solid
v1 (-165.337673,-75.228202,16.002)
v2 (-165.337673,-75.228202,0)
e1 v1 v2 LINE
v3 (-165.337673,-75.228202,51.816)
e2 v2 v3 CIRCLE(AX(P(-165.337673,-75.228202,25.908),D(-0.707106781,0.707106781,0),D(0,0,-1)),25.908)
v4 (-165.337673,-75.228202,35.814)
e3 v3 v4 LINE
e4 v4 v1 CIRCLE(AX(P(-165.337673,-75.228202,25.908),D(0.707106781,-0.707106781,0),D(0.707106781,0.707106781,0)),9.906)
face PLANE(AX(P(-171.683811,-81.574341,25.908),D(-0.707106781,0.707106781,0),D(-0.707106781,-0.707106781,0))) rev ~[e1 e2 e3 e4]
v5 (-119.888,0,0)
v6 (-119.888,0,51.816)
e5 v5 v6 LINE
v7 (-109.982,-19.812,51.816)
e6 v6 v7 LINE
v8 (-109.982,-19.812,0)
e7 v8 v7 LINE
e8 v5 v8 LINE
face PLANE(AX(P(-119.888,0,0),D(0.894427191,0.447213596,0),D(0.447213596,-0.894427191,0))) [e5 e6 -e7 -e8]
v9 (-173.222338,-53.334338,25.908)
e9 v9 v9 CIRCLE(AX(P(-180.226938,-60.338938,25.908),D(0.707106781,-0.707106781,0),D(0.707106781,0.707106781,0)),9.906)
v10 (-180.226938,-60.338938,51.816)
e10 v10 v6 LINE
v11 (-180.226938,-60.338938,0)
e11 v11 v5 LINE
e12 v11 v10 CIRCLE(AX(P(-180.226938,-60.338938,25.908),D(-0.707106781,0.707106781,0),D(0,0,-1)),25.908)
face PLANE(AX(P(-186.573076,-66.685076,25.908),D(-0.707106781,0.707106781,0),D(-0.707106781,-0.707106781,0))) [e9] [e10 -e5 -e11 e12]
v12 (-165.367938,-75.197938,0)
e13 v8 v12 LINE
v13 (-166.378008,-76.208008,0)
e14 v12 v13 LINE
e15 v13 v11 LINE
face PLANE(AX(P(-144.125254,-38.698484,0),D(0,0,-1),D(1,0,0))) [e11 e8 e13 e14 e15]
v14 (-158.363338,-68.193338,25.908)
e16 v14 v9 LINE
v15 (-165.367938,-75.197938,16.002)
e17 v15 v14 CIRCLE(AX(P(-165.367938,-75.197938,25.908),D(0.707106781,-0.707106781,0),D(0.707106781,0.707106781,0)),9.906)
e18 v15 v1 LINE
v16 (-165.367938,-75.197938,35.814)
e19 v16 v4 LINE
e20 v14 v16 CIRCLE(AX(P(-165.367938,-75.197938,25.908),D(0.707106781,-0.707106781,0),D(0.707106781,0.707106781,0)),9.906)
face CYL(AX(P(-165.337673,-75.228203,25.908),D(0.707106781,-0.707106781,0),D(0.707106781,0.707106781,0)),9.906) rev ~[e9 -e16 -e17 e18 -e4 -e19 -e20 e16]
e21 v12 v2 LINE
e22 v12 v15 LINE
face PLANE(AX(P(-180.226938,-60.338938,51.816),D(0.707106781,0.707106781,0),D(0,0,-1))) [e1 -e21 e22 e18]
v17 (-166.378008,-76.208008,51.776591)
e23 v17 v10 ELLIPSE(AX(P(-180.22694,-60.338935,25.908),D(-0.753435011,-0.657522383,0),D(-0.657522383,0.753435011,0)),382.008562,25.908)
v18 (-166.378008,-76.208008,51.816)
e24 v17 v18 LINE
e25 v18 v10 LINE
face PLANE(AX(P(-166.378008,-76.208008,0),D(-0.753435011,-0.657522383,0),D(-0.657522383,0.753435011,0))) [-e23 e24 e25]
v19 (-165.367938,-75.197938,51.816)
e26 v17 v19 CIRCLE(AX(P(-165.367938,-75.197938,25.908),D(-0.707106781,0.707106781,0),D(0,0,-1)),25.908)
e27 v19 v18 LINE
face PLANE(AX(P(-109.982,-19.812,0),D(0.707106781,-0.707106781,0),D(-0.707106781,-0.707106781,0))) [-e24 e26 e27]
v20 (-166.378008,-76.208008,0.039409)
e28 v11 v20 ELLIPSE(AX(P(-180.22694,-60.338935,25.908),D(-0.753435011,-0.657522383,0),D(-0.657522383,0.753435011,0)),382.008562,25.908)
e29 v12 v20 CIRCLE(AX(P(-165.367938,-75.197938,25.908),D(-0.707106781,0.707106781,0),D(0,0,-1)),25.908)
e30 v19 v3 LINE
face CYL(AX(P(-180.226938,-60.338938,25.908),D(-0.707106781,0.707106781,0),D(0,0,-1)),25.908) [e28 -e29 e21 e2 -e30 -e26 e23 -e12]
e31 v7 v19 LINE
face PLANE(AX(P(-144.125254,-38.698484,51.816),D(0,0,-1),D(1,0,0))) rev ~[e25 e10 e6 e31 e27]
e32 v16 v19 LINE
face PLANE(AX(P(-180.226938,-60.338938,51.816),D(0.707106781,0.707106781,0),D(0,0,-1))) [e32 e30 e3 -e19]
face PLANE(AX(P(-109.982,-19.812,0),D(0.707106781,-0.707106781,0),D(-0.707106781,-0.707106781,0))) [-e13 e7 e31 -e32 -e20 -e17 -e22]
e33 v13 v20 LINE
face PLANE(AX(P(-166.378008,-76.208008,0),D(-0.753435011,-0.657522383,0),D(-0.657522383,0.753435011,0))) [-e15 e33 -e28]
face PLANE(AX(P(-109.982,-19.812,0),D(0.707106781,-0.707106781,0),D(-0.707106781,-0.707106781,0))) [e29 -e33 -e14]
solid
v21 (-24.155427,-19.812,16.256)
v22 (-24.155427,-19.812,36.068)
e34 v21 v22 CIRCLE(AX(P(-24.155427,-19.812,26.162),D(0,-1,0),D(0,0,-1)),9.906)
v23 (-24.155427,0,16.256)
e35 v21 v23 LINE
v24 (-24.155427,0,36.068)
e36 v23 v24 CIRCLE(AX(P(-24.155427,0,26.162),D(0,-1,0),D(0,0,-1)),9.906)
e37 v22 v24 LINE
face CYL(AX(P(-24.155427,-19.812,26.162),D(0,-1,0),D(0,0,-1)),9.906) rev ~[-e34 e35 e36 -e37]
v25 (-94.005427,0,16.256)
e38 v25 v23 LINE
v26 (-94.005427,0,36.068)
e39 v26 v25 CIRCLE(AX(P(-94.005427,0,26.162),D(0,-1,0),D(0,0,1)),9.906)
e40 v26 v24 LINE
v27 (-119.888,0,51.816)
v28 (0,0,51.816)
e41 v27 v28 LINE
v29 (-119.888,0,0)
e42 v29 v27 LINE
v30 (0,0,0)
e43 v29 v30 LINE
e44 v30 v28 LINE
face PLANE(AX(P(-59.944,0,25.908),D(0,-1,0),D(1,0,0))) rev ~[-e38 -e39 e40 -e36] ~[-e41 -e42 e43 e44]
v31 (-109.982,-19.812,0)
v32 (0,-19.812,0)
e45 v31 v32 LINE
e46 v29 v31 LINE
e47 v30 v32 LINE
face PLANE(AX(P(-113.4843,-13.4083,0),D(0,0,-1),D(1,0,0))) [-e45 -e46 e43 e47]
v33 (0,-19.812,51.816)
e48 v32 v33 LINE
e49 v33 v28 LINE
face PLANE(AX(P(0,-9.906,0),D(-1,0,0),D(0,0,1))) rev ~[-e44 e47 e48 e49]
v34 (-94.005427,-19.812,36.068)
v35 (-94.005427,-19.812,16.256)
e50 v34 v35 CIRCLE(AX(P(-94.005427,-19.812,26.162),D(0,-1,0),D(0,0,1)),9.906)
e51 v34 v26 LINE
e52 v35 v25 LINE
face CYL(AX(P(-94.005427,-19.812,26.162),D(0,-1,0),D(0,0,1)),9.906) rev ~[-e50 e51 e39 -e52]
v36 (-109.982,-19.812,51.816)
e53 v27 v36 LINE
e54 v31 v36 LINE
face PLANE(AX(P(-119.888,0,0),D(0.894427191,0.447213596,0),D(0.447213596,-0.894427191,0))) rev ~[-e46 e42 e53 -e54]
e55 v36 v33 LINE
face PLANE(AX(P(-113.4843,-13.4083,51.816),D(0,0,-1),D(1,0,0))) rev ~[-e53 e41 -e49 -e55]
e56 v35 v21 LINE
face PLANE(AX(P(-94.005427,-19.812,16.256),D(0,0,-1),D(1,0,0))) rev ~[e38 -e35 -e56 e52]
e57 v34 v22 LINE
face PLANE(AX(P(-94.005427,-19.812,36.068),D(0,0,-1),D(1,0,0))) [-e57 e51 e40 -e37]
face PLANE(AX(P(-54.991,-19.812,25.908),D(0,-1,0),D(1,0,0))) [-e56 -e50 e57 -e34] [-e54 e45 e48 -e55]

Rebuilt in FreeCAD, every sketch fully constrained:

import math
import FreeCAD as App
import Part
import Sketcher
from FreeCAD import Vector
Q = App.Units.Quantity

doc = App.newDocument("Part")
params = doc.addObject("Spreadsheet::Sheet", "Params")
for row, (alias, value) in enumerate([
    ("sketch1_width", "4.72 in"),
    ("sketch1_height", "2.04 in"),
    ("pad1_length", "0.39 in"),
    ("sketch2_width", "4.33 in"),
    ("sketch2_height", "2.04 in"),
    ("pad2_length", "0.39 in"),
    ("sketch3_width", "0.39 in"),
    ("pad3_length", "2.04 in"),
    ("sketch4_height", "0.39 in"),
    ("pocket1_length", "2.04 in"),
    ("sketch5_radius", "0.39 in"),
    ("sketch5_width", "2.75 in"),
    ("pocket2_length", "0.78 in"),
    ("sketch6_length", "3.14 in"),
    ("pad4_length", "2.04 in"),
    ("sketch7_radius", "1.02 in"),
    ("pad5_length", "0.829 in"),
    ("sketch8_diameter", "0.78 in"),
    ("pocket3_length", "1 in"),
], start=1):
    params.set(f"A{row}", alias)
    params.set(f"B{row}", "=" + value)
    params.setAlias(f"B{row}", alias)

body = doc.addObject("PartDesign::Body", "Body")

sketch1 = body.newObject("Sketcher::SketchObject", "Sketch")
sketch1.AttachmentSupport = (doc.getObject("XZ_Plane"), [""])
sketch1.MapMode = "FlatFace"
sketch1.addGeometry([
    Part.LineSegment(Vector(-120, 52, 0), Vector(-120, 0, 0)),
    Part.LineSegment(Vector(-120, 0, 0), Vector(0, 0, 0)),
    Part.LineSegment(Vector(0, 0, 0), Vector(0, 52, 0)),
    Part.LineSegment(Vector(0, 52, 0), Vector(-120, 52, 0)),
], False)
sketch1.addConstraint([
    Sketcher.Constraint("Coincident", 0, 2, 1, 1),
    Sketcher.Constraint("Coincident", 1, 2, 2, 1),
    Sketcher.Constraint("Coincident", 2, 2, 3, 1),
    Sketcher.Constraint("Coincident", 3, 2, 0, 1),
    Sketcher.Constraint("Vertical", 0),
    Sketcher.Constraint("Horizontal", 1),
    Sketcher.Constraint("Vertical", 2),
    Sketcher.Constraint("Horizontal", 3),
    Sketcher.Constraint("Coincident", 1, 2, -1, 1),
    Sketcher.Constraint("DistanceX", 1, 1, 1, 2, Q("4.72 in")),
    Sketcher.Constraint("DistanceY", 0, 2, 0, 1, Q("2.04 in")),
])
sketch1.setExpression("Constraints[9]", "Params.sketch1_width")
sketch1.setExpression("Constraints[10]", "Params.sketch1_height")
pad1 = body.newObject("PartDesign::Pad", "Pad")
pad1.Profile = sketch1
pad1.setExpression("Length", "Params.pad1_length")

sketch2 = body.newObject("Sketcher::SketchObject", "Sketch001")
sketch2.AttachmentSupport = (doc.getObject("XZ_Plane"), [""])
sketch2.MapMode = "FlatFace"
sketch2.AttachmentOffset = App.Placement(Vector(0, 0, 0.39 * 25.4), App.Rotation())
sketch2.addGeometry([
    Part.LineSegment(Vector(-110, 52, 0), Vector(-110, 0, 0)),
    Part.LineSegment(Vector(-110, 0, 0), Vector(0, 0, 0)),
    Part.LineSegment(Vector(0, 0, 0), Vector(0, 52, 0)),
    Part.LineSegment(Vector(0, 52, 0), Vector(-110, 52, 0)),
], False)
sketch2.addConstraint([
    Sketcher.Constraint("Coincident", 0, 2, 1, 1),
    Sketcher.Constraint("Coincident", 1, 2, 2, 1),
    Sketcher.Constraint("Coincident", 2, 2, 3, 1),
    Sketcher.Constraint("Coincident", 3, 2, 0, 1),
    Sketcher.Constraint("Vertical", 0),
    Sketcher.Constraint("Horizontal", 1),
    Sketcher.Constraint("Vertical", 2),
    Sketcher.Constraint("Horizontal", 3),
    Sketcher.Constraint("Coincident", 1, 2, -1, 1),
    Sketcher.Constraint("DistanceX", 1, 1, 1, 2, Q("4.33 in")),
    Sketcher.Constraint("DistanceY", 0, 2, 0, 1, Q("2.04 in")),
])
sketch2.setExpression("Constraints[9]", "Params.sketch2_width")
sketch2.setExpression("Constraints[10]", "Params.sketch2_height")
pad2 = body.newObject("PartDesign::Pad", "Pad001")
pad2.Profile = sketch2
pad2.setExpression("Length", "Params.pad2_length")

sketch3 = body.newObject("Sketcher::SketchObject", "Sketch002")
sketch3.AttachmentSupport = (doc.getObject("XY_Plane"), [""])
sketch3.MapMode = "FlatFace"
sketch3.addGeometry([
    Part.LineSegment(Vector(-110, -10, 0), Vector(-110, -20, 0)),
    Part.LineSegment(Vector(-110, -20, 0), Vector(-120, -10, 0)),
    Part.LineSegment(Vector(-120, -10, 0), Vector(-110, -10, 0)),
], False)
sketch3.addConstraint([
    Sketcher.Constraint("Coincident", 0, 2, 1, 1),
    Sketcher.Constraint("Coincident", 1, 2, 2, 1),
    Sketcher.Constraint("Coincident", 2, 2, 0, 1),
    Sketcher.Constraint("Vertical", 0),
    Sketcher.Constraint("Horizontal", 2),
    Sketcher.Constraint("Equal", 2, 0),
    Sketcher.Constraint("DistanceX", 2, 1, 2, 2, Q("0.39 in")),
    Sketcher.Constraint("DistanceX", 0, 2, -1, 1, Q("4.33 in")),
    Sketcher.Constraint("DistanceY", 0, 2, -1, 1, Q("0.78 in")),
])
sketch3.setExpression("Constraints[6]", "Params.sketch3_width")
pad3 = body.newObject("PartDesign::Pad", "Pad002")
pad3.Profile = sketch3
pad3.setExpression("Length", "Params.pad3_length")

sketch4 = body.newObject("Sketcher::SketchObject", "Sketch003")
sketch4.AttachmentSupport = (doc.getObject("XY_Plane"), [""])
sketch4.MapMode = "FlatFace"
sketch4.addGeometry([
    Part.LineSegment(Vector(-120, 0, 0), Vector(-110, -20, 0)),
    Part.LineSegment(Vector(-110, -20, 0), Vector(-120, -10, 0)),
    Part.LineSegment(Vector(-120, -10, 0), Vector(-120, 0, 0)),
], False)
sketch4.addConstraint([
    Sketcher.Constraint("Coincident", 0, 2, 1, 1),
    Sketcher.Constraint("Coincident", 1, 2, 2, 1),
    Sketcher.Constraint("Coincident", 2, 2, 0, 1),
    Sketcher.Constraint("Vertical", 2),
    Sketcher.Constraint("PointOnObject", 2, 2, -1),
    Sketcher.Constraint("Angle", 1, Q("135 deg")),
    Sketcher.Constraint("DistanceY", 2, 1, 2, 2, Q("0.39 in")),
    Sketcher.Constraint("DistanceX", 0, 2, -1, 1, Q("4.33 in")),
    Sketcher.Constraint("DistanceY", 0, 2, -1, 1, Q("0.78 in")),
])
sketch4.setExpression("Constraints[6]", "Params.sketch4_height")
pocket1 = body.newObject("PartDesign::Pocket", "Pocket")
pocket1.Profile = sketch4
pocket1.setExpression("Length", "Params.pocket1_length")
pocket1.Reversed = True

sketch5 = body.newObject("Sketcher::SketchObject", "Sketch004")
sketch5.AttachmentSupport = (doc.getObject("XZ_Plane"), [""])
sketch5.MapMode = "FlatFace"
sketch5.AttachmentOffset = App.Placement(Vector(0, 0, 0.78 * 25.4), App.Rotation())
sketch5.addGeometry([
    Part.LineSegment(Vector(-94, 16, 0), Vector(-24, 16, 0)),
    Part.ArcOfCircle(Part.Circle(Vector(-24, 26, 0), Vector(0, 0, 1), 10), math.radians(-90), math.radians(90)),
    Part.LineSegment(Vector(-24, 36, 0), Vector(-94, 36, 0)),
    Part.ArcOfCircle(Part.Circle(Vector(-94, 26, 0), Vector(0, 0, 1), 10), math.radians(90), math.radians(270)),
], False)
sketch5.addConstraint([
    Sketcher.Constraint("Tangent", 0, 2, 1, 1),
    Sketcher.Constraint("Tangent", 1, 2, 2, 1),
    Sketcher.Constraint("Tangent", 2, 2, 3, 1),
    Sketcher.Constraint("Tangent", 3, 2, 0, 1),
    Sketcher.Constraint("Horizontal", 0),
    Sketcher.Constraint("Horizontal", 2),
    Sketcher.Constraint("Radius", 1, Q("0.39 in")),
    Sketcher.Constraint("DistanceX", 0, 1, 0, 2, Q("2.75 in")),
    Sketcher.Constraint("DistanceY", -1, 1, 1, 3, Q("1.03 in")),
    Sketcher.Constraint("DistanceX", 1, 3, -1, 1, 24.155427),
])
sketch5.setExpression("Constraints[6]", "Params.sketch5_radius")
sketch5.setExpression("Constraints[7]", "Params.sketch5_width")
pocket2 = body.newObject("PartDesign::Pocket", "Pocket001")
pocket2.Profile = sketch5
pocket2.setExpression("Length", "Params.pocket2_length")
body2 = doc.addObject("PartDesign::Body", "Body001")

sketch6 = body2.newObject("Sketcher::SketchObject", "Sketch005")
sketch6.AttachmentSupport = (doc.getObject("XY_Plane001"), [""])
sketch6.MapMode = "FlatFace"
sketch6.addGeometry([
    Part.LineSegment(Vector(-120, 0, 0), Vector(-110, -20, 0)),
    Part.LineSegment(Vector(-110, -20, 0), Vector(-166, -76, 0)),
    Part.LineSegment(Vector(-166, -76, 0), Vector(-180, -60, 0)),
    Part.LineSegment(Vector(-180, -60, 0), Vector(-120, 0, 0)),
], False)
sketch6.addConstraint([
    Sketcher.Constraint("Coincident", 0, 2, 1, 1),
    Sketcher.Constraint("Coincident", 1, 2, 2, 1),
    Sketcher.Constraint("Coincident", 2, 2, 3, 1),
    Sketcher.Constraint("Coincident", 3, 2, 0, 1),
    Sketcher.Constraint("PointOnObject", 3, 2, -1),
    Sketcher.Constraint("Parallel", 1, 3),
    Sketcher.Constraint("Angle", 1, Q("-135 deg")),
    Sketcher.Constraint("Distance", 1, Q("3.14 in")),
    Sketcher.Constraint("DistanceX", 0, 2, -1, 1, Q("4.33 in")),
    Sketcher.Constraint("DistanceY", 0, 2, -1, 1, Q("0.78 in")),
    Sketcher.Constraint("DistanceX", 3, 2, -1, 1, Q("4.72 in")),
    Sketcher.Constraint("DistanceX", 2, 2, 1, 2, 13.84893),
])
sketch6.setExpression("Constraints[7]", "Params.sketch6_length")
pad4 = body2.newObject("PartDesign::Pad", "Pad003")
pad4.Profile = sketch6
pad4.setExpression("Length", "Params.pad4_length")

sketch7 = body2.newObject("Sketcher::SketchObject", "Sketch006")
sketch7.Placement = App.Placement(Vector(-59.944, 59.944, 0), App.Rotation(Vector(-0.707106781, -0.707106781, 0), Vector(0, 0, 0.999999999), Vector(-0.707106781, 0.707106781, 0), "ZXY"))
sketch7.addGeometry([
    Part.LineSegment(Vector(170, 52, 0), Vector(170, 0, 0)),
    Part.ArcOfCircle(Part.Circle(Vector(170, 26, 0), Vector(0, 0, 1), 26), math.radians(-90), math.radians(90)),
], False)
sketch7.addConstraint([
    Sketcher.Constraint("Coincident", 0, 1, 1, 2),
    Sketcher.Constraint("Coincident", 1, 1, 0, 2),
    Sketcher.Constraint("Vertical", 0),
    Sketcher.Constraint("PointOnObject", 1, 1, -1),
    Sketcher.Constraint("Vertical", 1, 3, 0, 1),
    Sketcher.Constraint("Radius", 1, Q("1.02 in")),
    Sketcher.Constraint("DistanceX", -1, 1, 1, 3, 170.105762),
])
sketch7.setExpression("Constraints[5]", "Params.sketch7_radius")
pad5 = body2.newObject("PartDesign::Pad", "Pad004")
pad5.Profile = sketch7
pad5.setExpression("Length", "Params.pad5_length")
pad5.Reversed = True

sketch8 = body2.newObject("Sketcher::SketchObject", "Sketch007")
sketch8.Placement = App.Placement(Vector(-45.054735, 45.054735, 0), App.Rotation(Vector(0.707106781, 0.707106781, 0), Vector(0, 0, 0.999999999), Vector(0.707106781, -0.707106781, 0), "ZXY"))
sketch8.addGeometry(Part.Circle(Vector(-170, 26, 0), Vector(0, 0, 1), 10), False)
sketch8.addConstraint([
    Sketcher.Constraint("Diameter", 0, Q("0.78 in")),
    Sketcher.Constraint("DistanceY", -1, 1, 0, 3, Q("1.02 in")),
    Sketcher.Constraint("DistanceX", 0, 3, -1, 1, 170.105762),
])
sketch8.setExpression("Constraints[0]", "Params.sketch8_diameter")
pocket3 = body2.newObject("PartDesign::Pocket", "Pocket002")
pocket3.Profile = sketch8
pocket3.setExpression("Length", "Params.pocket3_length")

doc.recompute()
